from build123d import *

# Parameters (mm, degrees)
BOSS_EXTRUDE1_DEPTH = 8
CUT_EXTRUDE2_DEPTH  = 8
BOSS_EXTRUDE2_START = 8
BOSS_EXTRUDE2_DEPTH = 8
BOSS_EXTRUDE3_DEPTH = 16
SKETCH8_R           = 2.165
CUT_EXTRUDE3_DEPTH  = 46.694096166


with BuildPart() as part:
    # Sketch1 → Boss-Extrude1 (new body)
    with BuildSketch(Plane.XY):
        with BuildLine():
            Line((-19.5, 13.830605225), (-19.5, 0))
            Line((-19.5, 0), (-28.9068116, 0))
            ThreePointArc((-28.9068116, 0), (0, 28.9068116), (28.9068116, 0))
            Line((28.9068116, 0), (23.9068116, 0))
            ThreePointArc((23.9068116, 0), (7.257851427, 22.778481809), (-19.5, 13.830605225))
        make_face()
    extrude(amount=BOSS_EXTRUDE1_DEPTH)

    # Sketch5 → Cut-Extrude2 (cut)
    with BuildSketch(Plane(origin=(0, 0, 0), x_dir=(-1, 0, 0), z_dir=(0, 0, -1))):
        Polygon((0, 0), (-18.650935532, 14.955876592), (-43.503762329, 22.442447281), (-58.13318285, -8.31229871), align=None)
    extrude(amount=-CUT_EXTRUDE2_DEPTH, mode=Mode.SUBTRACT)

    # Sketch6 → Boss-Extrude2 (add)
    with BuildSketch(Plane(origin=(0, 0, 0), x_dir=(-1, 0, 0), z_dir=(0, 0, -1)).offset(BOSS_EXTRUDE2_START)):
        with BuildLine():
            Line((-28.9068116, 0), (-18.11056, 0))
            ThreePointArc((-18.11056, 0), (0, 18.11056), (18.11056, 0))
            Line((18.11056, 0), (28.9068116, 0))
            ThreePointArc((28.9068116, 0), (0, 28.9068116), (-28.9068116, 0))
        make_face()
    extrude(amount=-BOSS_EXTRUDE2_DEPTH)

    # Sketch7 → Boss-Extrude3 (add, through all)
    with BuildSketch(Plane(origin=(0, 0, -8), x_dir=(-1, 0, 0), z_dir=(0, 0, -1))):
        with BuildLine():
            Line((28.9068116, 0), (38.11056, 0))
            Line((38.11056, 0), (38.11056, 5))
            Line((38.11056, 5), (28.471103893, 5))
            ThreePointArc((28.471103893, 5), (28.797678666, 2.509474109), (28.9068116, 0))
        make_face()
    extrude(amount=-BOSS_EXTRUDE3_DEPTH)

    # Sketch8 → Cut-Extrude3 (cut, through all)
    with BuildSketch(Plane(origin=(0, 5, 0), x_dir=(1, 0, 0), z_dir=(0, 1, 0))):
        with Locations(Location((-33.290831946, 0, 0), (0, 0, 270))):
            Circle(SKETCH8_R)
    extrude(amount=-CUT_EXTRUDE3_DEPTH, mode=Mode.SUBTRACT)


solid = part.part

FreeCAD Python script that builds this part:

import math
import FreeCAD as App
import Part
import Sketcher

V = App.Vector


def add_polygon(sketch, points):
    """Adds a closed chain of lines whose ends are joined by coincident constraints."""
    first, n = sketch.GeometryCount, len(points)
    for a, b in zip(points, points[1:] + points[:1]):
        sketch.addGeometry(Part.LineSegment(App.Vector(*a, 0), App.Vector(*b, 0)), False)
    for i in range(n):
        sketch.addConstraint(Sketcher.Constraint("Coincident", first + i, 2, first + (i + 1) % n, 1))

doc = App.newDocument("Part")
body = doc.addObject("PartDesign::Body", "Body")

# Sketch on XY plane
sketch1 = body.newObject("Sketcher::SketchObject", "Sketch")
sketch1.AttachmentSupport = (doc.getObject("XY_Plane"), [""])
sketch1.MapMode = "FlatFace"
sketch1.addGeometry([
    Part.LineSegment(V(-20, 0, 0), V(-20, 14, 0)),  # 0
    Part.ArcOfCircle(Part.Circle(V(0, 0, 0), V(0, 0, 1), 24), math.radians(0), math.radians(145)),  # 1
    Part.LineSegment(V(24, 0, 0), V(29, 0, 0)),  # 2
    Part.ArcOfCircle(Part.Circle(V(0, 0, 0), V(0, 0, 1), 29), math.radians(0), math.radians(180)),  # 3
    Part.LineSegment(V(-29, 0, 0), V(-20, 0, 0)),  # 4
], False)
sketch1.addConstraint([
    Sketcher.Constraint("Coincident", 0, 2, 1, 2),
    Sketcher.Constraint("Coincident", 1, 1, 2, 1),
    Sketcher.Constraint("Coincident", 2, 2, 3, 1),
    Sketcher.Constraint("Coincident", 3, 2, 4, 1),
    Sketcher.Constraint("Coincident", 4, 2, 0, 1),
    Sketcher.Constraint("Vertical", 0),
    Sketcher.Constraint("Horizontal", 2),
    Sketcher.Constraint("Horizontal", 4),
    Sketcher.Constraint("Coincident", 1, 3, -1, 1),
    Sketcher.Constraint("Coincident", 3, 3, -1, 1),
    Sketcher.Constraint("PointOnObject", 1, 1, -1),
    Sketcher.Constraint("PointOnObject", 3, 2, -1),
    Sketcher.Constraint("DistanceX", 2, 1, 2, 2, 5.0),
    Sketcher.Constraint("DistanceX", 0, 2, -1, 1, 19.5),
    Sketcher.Constraint("Radius", 1, 23.906812),
])
pad1 = body.newObject("PartDesign::Pad", "Pad")
pad1.Profile = sketch1
pad1.Length = 8

# Sketch on XY plane
sketch2 = body.newObject("Sketcher::SketchObject", "Sketch001")
sketch2.AttachmentSupport = (doc.getObject("XY_Plane"), [""])
sketch2.MapMode = "FlatFace"
add_polygon(sketch2, [(0, 0), (19, 15), (44, 22), (58, -8)])  # lines 0-3
sketch2.addConstraint([
    Sketcher.Constraint("Coincident", 3, 2, -1, 1),
    Sketcher.Constraint("DistanceY", 2, 2, -1, 1, 8.312299),
    Sketcher.Constraint("Distance", 0, 23.906812),
    Sketcher.Constraint("Distance", 2, 34.056928),
    Sketcher.Constraint("Distance", 3, 58.724452),
    Sketcher.Constraint("DistanceY", 0, 2, 1, 2, 7.486571),
    Sketcher.Constraint("DistanceX", 1, 2, 2, 2, 14.629421),
])
pocket1 = body.newObject("PartDesign::Pocket", "Pocket")
pocket1.Profile = sketch2
pocket1.Length = 8
pocket1.Reversed = True

# Sketch on XY plane
sketch3 = body.newObject("Sketcher::SketchObject", "Sketch002")
sketch3.AttachmentSupport = (doc.getObject("XY_Plane"), [""])
sketch3.MapMode = "FlatFace"
sketch3.AttachmentOffset = App.Placement(V(0, 0, -8), App.Rotation())
sketch3.addGeometry([
    Part.LineSegment(V(29, 0, 0), V(18, 0, 0)),
    Part.ArcOfCircle(Part.Circle(V(0, 0, 0), V(0, 0, 1), 18), math.radians(0), math.radians(180)),
    Part.LineSegment(V(-18, 0, 0), V(-29, 0, 0)),
    Part.ArcOfCircle(Part.Circle(V(0, 0, 0), V(0, 0, 1), 29), math.radians(0), math.radians(180)),
], False)
sketch3.addConstraint([
    Sketcher.Constraint("Coincident", 0, 2, 1, 1),
    Sketcher.Constraint("Coincident", 1, 2, 2, 1),
    Sketcher.Constraint("Coincident", 2, 2, 3, 2),
    Sketcher.Constraint("Coincident", 3, 1, 0, 1),
    Sketcher.Constraint("Horizontal", 0),
    Sketcher.Constraint("Horizontal", 2),
    Sketcher.Constraint("Coincident", 1, 3, -1, 1),
    Sketcher.Constraint("Coincident", 3, 3, -1, 1),
    Sketcher.Constraint("PointOnObject", 0, 2, -1),
    Sketcher.Constraint("PointOnObject", 1, 2, -1),
    Sketcher.Constraint("Radius", 1, 18.11056),
    Sketcher.Constraint("Radius", 3, 28.906812),
])
pad2 = body.newObject("PartDesign::Pad", "Pad001")
pad2.Profile = sketch3
pad2.Length = 8

# Sketch on XY plane
sketch4 = body.newObject("Sketcher::SketchObject", "Sketch003")
sketch4.AttachmentSupport = (doc.getObject("XY_Plane"), [""])
sketch4.MapMode = "FlatFace"
sketch4.AttachmentOffset = App.Placement(V(0, 0, -8), App.Rotation())
sketch4.addGeometry([
    Part.LineSegment(V(-29, 0, 0), V(-38, 0, 0)),
    Part.LineSegment(V(-38, 0, 0), V(-38, 5, 0)),
    Part.LineSegment(V(-38, 5, 0), V(-28, 5, 0)),
    Part.ArcOfCircle(Part.Circle(V(0, 0, 0), V(0, 0, 1), 29), math.radians(170.04), math.radians(180)),
], False)
sketch4.addConstraint([
    Sketcher.Constraint("Coincident", 0, 2, 1, 1),
    Sketcher.Constraint("Coincident", 1, 2, 2, 1),
    Sketcher.Constraint("Coincident", 2, 2, 3, 1),
    Sketcher.Constraint("Coincident", 3, 2, 0, 1),
    Sketcher.Constraint("Horizontal", 0),
    Sketcher.Constraint("Vertical", 1),
    Sketcher.Constraint("Horizontal", 2),
    Sketcher.Constraint("Coincident", 3, 3, -1, 1),
    Sketcher.Constraint("PointOnObject", 0, 2, -1),
    Sketcher.Constraint("DistanceY", 1, 1, 1, 2, 5.0),
    Sketcher.Constraint("Radius", 3, 28.906812),
    Sketcher.Constraint("DistanceX", 0, 2, 0, 1, 9.203748),
])
pad3 = body.newObject("PartDesign::Pad", "Pad002")
pad3.Profile = sketch4
pad3.Length = 16

# Sketch on XZ plane
sketch5 = body.newObject("Sketcher::SketchObject", "Sketch004")
sketch5.AttachmentSupport = (doc.getObject("XZ_Plane"), [""])
sketch5.MapMode = "FlatFace"
sketch5.AttachmentOffset = App.Placement(V(0, 0, -5), App.Rotation())
sketch5.addGeometry(Part.Circle(V(-33.3, 0, 0), V(0, 0, 1), 2.2), False)
sketch5.addConstraint([
    Sketcher.Constraint("PointOnObject", 0, 3, -1),
    Sketcher.Constraint("Diameter", 0, 4.33),
    Sketcher.Constraint("DistanceX", 0, 3, -1, 1, 33.290832),
])
pocket2 = body.newObject("PartDesign::Pocket", "Pocket001")
pocket2.Profile = sketch5
pocket2.Type = "ThroughAll"
pocket2.Reversed = True

doc.recompute()
